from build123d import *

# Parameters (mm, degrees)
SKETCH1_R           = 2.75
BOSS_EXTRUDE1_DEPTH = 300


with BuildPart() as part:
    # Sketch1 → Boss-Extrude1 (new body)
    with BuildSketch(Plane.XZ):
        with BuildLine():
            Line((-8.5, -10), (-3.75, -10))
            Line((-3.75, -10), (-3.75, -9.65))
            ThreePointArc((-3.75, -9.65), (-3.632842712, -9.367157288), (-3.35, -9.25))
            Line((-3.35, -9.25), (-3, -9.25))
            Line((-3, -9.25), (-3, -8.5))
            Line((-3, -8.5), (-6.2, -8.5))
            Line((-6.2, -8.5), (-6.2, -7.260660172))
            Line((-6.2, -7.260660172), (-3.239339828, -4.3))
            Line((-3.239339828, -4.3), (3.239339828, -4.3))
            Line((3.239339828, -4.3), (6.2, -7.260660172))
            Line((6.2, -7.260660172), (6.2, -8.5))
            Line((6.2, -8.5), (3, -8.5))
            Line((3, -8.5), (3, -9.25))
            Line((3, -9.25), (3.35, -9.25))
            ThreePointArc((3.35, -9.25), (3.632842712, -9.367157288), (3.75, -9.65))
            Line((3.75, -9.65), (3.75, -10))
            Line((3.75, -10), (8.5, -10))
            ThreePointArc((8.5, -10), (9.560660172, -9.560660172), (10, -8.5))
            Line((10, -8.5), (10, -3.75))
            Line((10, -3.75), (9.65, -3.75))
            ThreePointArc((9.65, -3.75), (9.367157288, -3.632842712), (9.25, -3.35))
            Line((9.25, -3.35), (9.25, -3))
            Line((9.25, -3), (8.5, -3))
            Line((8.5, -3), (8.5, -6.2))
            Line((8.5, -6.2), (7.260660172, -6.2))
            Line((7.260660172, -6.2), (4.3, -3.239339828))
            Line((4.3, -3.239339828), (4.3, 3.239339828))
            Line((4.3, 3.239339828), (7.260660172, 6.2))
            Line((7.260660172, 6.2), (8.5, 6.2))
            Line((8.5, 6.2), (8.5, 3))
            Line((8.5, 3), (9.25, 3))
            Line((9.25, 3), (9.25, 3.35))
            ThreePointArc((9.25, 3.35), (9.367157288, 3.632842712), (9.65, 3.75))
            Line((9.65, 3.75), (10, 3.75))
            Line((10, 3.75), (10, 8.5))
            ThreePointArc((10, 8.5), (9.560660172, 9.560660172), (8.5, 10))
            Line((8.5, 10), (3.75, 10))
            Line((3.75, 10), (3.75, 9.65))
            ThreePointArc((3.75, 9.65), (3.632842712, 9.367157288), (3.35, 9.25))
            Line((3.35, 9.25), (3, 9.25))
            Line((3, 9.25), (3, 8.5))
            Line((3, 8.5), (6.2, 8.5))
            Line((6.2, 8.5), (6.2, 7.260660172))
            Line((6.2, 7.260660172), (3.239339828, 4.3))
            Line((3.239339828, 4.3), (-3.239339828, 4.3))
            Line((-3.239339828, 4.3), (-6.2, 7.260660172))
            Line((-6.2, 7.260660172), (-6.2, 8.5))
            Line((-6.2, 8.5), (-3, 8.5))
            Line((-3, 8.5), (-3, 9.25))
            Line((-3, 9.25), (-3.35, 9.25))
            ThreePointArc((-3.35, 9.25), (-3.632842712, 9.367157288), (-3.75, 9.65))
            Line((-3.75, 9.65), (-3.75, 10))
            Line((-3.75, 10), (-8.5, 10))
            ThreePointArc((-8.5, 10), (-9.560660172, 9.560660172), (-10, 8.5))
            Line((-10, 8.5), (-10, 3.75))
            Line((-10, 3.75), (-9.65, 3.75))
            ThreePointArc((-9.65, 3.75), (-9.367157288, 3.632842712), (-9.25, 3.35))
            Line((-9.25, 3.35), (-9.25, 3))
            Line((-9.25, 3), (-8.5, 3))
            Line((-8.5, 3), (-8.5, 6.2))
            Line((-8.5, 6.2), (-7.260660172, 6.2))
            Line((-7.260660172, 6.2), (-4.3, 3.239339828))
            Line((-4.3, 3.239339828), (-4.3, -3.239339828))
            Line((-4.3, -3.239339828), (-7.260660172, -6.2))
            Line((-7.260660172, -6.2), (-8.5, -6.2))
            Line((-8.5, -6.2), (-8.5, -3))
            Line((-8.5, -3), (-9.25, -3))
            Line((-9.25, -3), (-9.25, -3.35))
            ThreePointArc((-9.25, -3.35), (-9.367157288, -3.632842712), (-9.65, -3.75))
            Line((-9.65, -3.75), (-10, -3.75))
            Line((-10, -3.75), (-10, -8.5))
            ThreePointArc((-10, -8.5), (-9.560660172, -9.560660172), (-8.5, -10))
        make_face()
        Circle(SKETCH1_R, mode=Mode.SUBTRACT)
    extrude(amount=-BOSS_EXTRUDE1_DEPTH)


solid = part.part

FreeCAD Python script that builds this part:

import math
import FreeCAD as App
import Part
import Sketcher

V = App.Vector
Q = App.Units.Quantity

doc = App.newDocument("Part")
params = doc.addObject("Spreadsheet::Sheet", "Params")
for row, (alias, value) in enumerate([
    ("sketch1_diameter", "5.5 mm"),
    ("sketch1_radius", "0.4 mm"),
    ("sketch1_radius2", "1.5 mm"),
    ("sketch1_width", "3.2 mm"),
    ("sketch1_width2", "4.75 mm"),
    ("pad1_length", "300 mm"),
], start=1):
    params.set(f"A{row}", alias)
    params.set(f"B{row}", "=" + value)
    params.setAlias(f"B{row}", alias)

body = doc.addObject("PartDesign::Body", "Body")

sketch1 = body.newObject("Sketcher::SketchObject", "Sketch")
sketch1.AttachmentSupport = (doc.getObject("XZ_Plane"), [""])
sketch1.MapMode = "FlatFace"
sketch1.addGeometry(Part.LineSegment(V(-8.5, -10, 0), V(-3.75, -10, 0)), False)
sketch1.addGeometry(Part.LineSegment(V(-3.75, -10, 0), V(-3.75, -9.65, 0)), False)
sketch1.addGeometry(Part.ArcOfCircle(Part.Circle(V(-3.35, -9.65, 0), V(0, 0, 1), 0.4), math.radians(90), math.radians(180)), False)
sketch1.addGeometry(Part.LineSegment(V(-3.35, -9.25, 0), V(-3, -9.25, 0)), False)
sketch1.addGeometry(Part.LineSegment(V(-3, -9.25, 0), V(-3, -8.5, 0)), False)
sketch1.addGeometry(Part.LineSegment(V(-3, -8.5, 0), V(-6.2, -8.5, 0)), False)
sketch1.addGeometry(Part.LineSegment(V(-6.2, -8.5, 0), V(-6.2, -7.26066, 0)), False)
sketch1.addGeometry(Part.LineSegment(V(-6.2, -7.26066, 0), V(-3.23934, -4.3, 0)), False)
sketch1.addGeometry(Part.LineSegment(V(-3.23934, -4.3, 0), V(3.23934, -4.3, 0)), False)
sketch1.addGeometry(Part.LineSegment(V(3.23934, -4.3, 0), V(6.2, -7.26066, 0)), False)
sketch1.addGeometry(Part.LineSegment(V(6.2, -7.26066, 0), V(6.2, -8.5, 0)), False)
sketch1.addGeometry(Part.LineSegment(V(6.2, -8.5, 0), V(3, -8.5, 0)), False)
sketch1.addGeometry(Part.LineSegment(V(3, -8.5, 0), V(3, -9.25, 0)), False)
sketch1.addGeometry(Part.LineSegment(V(3, -9.25, 0), V(3.35, -9.25, 0)), False)
sketch1.addGeometry(Part.ArcOfCircle(Part.Circle(V(3.35, -9.65, 0), V(0, 0, 1), 0.4), math.radians(0), math.radians(90)), False)
sketch1.addGeometry(Part.LineSegment(V(3.75, -9.65, 0), V(3.75, -10, 0)), False)
sketch1.addGeometry(Part.LineSegment(V(3.75, -10, 0), V(8.5, -10, 0)), False)
sketch1.addGeometry(Part.ArcOfCircle(Part.Circle(V(8.5, -8.5, 0), V(0, 0, 1), 1.5), math.radians(-90), math.radians(0)), False)
sketch1.addGeometry(Part.LineSegment(V(10, -8.5, 0), V(10, -3.75, 0)), False)
sketch1.addGeometry(Part.LineSegment(V(10, -3.75, 0), V(9.65, -3.75, 0)), False)
sketch1.addGeometry(Part.ArcOfCircle(Part.Circle(V(9.65, -3.35, 0), V(0, 0, 1), 0.4), math.radians(-180), math.radians(-90)), False)
sketch1.addGeometry(Part.LineSegment(V(9.25, -3.35, 0), V(9.25, -3, 0)), False)
sketch1.addGeometry(Part.LineSegment(V(9.25, -3, 0), V(8.5, -3, 0)), False)
sketch1.addGeometry(Part.LineSegment(V(8.5, -3, 0), V(8.5, -6.2, 0)), False)
sketch1.addGeometry(Part.LineSegment(V(8.5, -6.2, 0), V(7.26066, -6.2, 0)), False)
sketch1.addGeometry(Part.LineSegment(V(7.26066, -6.2, 0), V(4.3, -3.23934, 0)), False)
sketch1.addGeometry(Part.LineSegment(V(4.3, -3.23934, 0), V(4.3, 3.23934, 0)), False)
sketch1.addGeometry(Part.LineSegment(V(4.3, 3.23934, 0), V(7.26066, 6.2, 0)), False)
sketch1.addGeometry(Part.LineSegment(V(7.26066, 6.2, 0), V(8.5, 6.2, 0)), False)
sketch1.addGeometry(Part.LineSegment(V(8.5, 6.2, 0), V(8.5, 3, 0)), False)
sketch1.addGeometry(Part.LineSegment(V(8.5, 3, 0), V(9.25, 3, 0)), False)
sketch1.addGeometry(Part.LineSegment(V(9.25, 3, 0), V(9.25, 3.35, 0)), False)
sketch1.addGeometry(Part.ArcOfCircle(Part.Circle(V(9.65, 3.35, 0), V(0, 0, 1), 0.4), math.radians(90), math.radians(180)), False)
sketch1.addGeometry(Part.LineSegment(V(9.65, 3.75, 0), V(10, 3.75, 0)), False)
sketch1.addGeometry(Part.LineSegment(V(10, 3.75, 0), V(10, 8.5, 0)), False)
sketch1.addGeometry(Part.ArcOfCircle(Part.Circle(V(8.5, 8.5, 0), V(0, 0, 1), 1.5), math.radians(0), math.radians(90)), False)
sketch1.addGeometry(Part.LineSegment(V(8.5, 10, 0), V(3.75, 10, 0)), False)
sketch1.addGeometry(Part.LineSegment(V(3.75, 10, 0), V(3.75, 9.65, 0)), False)
sketch1.addGeometry(Part.ArcOfCircle(Part.Circle(V(3.35, 9.65, 0), V(0, 0, 1), 0.4), math.radians(-90), math.radians(0)), False)
sketch1.addGeometry(Part.LineSegment(V(3.35, 9.25, 0), V(3, 9.25, 0)), False)
sketch1.addGeometry(Part.LineSegment(V(3, 9.25, 0), V(3, 8.5, 0)), False)
sketch1.addGeometry(Part.LineSegment(V(3, 8.5, 0), V(6.2, 8.5, 0)), False)
sketch1.addGeometry(Part.LineSegment(V(6.2, 8.5, 0), V(6.2, 7.26066, 0)), False)
sketch1.addGeometry(Part.LineSegment(V(6.2, 7.26066, 0), V(3.23934, 4.3, 0)), False)
sketch1.addGeometry(Part.LineSegment(V(3.23934, 4.3, 0), V(-3.23934, 4.3, 0)), False)
sketch1.addGeometry(Part.LineSegment(V(-3.23934, 4.3, 0), V(-6.2, 7.26066, 0)), False)
sketch1.addGeometry(Part.LineSegment(V(-6.2, 7.26066, 0), V(-6.2, 8.5, 0)), False)
sketch1.addGeometry(Part.LineSegment(V(-6.2, 8.5, 0), V(-3, 8.5, 0)), False)
sketch1.addGeometry(Part.LineSegment(V(-3, 8.5, 0), V(-3, 9.25, 0)), False)
sketch1.addGeometry(Part.LineSegment(V(-3, 9.25, 0), V(-3.35, 9.25, 0)), False)
sketch1.addGeometry(Part.ArcOfCircle(Part.Circle(V(-3.35, 9.65, 0), V(0, 0, 1), 0.4), math.radians(-180), math.radians(-90)), False)
sketch1.addGeometry(Part.LineSegment(V(-3.75, 9.65, 0), V(-3.75, 10, 0)), False)
sketch1.addGeometry(Part.LineSegment(V(-3.75, 10, 0), V(-8.5, 10, 0)), False)
sketch1.addGeometry(Part.ArcOfCircle(Part.Circle(V(-8.5, 8.5, 0), V(0, 0, 1), 1.5), math.radians(90), math.radians(180)), False)
sketch1.addGeometry(Part.LineSegment(V(-10, 8.5, 0), V(-10, 3.75, 0)), False)
sketch1.addGeometry(Part.LineSegment(V(-10, 3.75, 0), V(-9.65, 3.75, 0)), False)
sketch1.addGeometry(Part.ArcOfCircle(Part.Circle(V(-9.65, 3.35, 0), V(0, 0, 1), 0.4), math.radians(0), math.radians(90)), False)
sketch1.addGeometry(Part.LineSegment(V(-9.25, 3.35, 0), V(-9.25, 3, 0)), False)
sketch1.addGeometry(Part.LineSegment(V(-9.25, 3, 0), V(-8.5, 3, 0)), False)
sketch1.addGeometry(Part.LineSegment(V(-8.5, 3, 0), V(-8.5, 6.2, 0)), False)
sketch1.addGeometry(Part.LineSegment(V(-8.5, 6.2, 0), V(-7.26066, 6.2, 0)), False)
sketch1.addGeometry(Part.LineSegment(V(-7.26066, 6.2, 0), V(-4.3, 3.23934, 0)), False)
sketch1.addGeometry(Part.LineSegment(V(-4.3, 3.23934, 0), V(-4.3, -3.23934, 0)), False)
sketch1.addGeometry(Part.LineSegment(V(-4.3, -3.23934, 0), V(-7.26066, -6.2, 0)), False)
sketch1.addGeometry(Part.LineSegment(V(-7.26066, -6.2, 0), V(-8.5, -6.2, 0)), False)
sketch1.addGeometry(Part.LineSegment(V(-8.5, -6.2, 0), V(-8.5, -3, 0)), False)
sketch1.addGeometry(Part.LineSegment(V(-8.5, -3, 0), V(-9.25, -3, 0)), False)
sketch1.addGeometry(Part.LineSegment(V(-9.25, -3, 0), V(-9.25, -3.35, 0)), False)
sketch1.addGeometry(Part.ArcOfCircle(Part.Circle(V(-9.65, -3.35, 0), V(0, 0, 1), 0.4), math.radians(-90), math.radians(0)), False)
sketch1.addGeometry(Part.LineSegment(V(-9.65, -3.75, 0), V(-10, -3.75, 0)), False)
sketch1.addGeometry(Part.LineSegment(V(-10, -3.75, 0), V(-10, -8.5, 0)), False)
sketch1.addGeometry(Part.ArcOfCircle(Part.Circle(V(-8.5, -8.5, 0), V(0, 0, 1), 1.5), math.radians(180), math.radians(270)), False)
sketch1.addGeometry(Part.Circle(V(0, 0, 0), V(0, 0, 1), 2.75), False)
sketch1.addConstraint(Sketcher.Constraint("Coincident", 0, 2, 1, 1))
sketch1.addConstraint(Sketcher.Constraint("Tangent", 1, 2, 2, 2))
sketch1.addConstraint(Sketcher.Constraint("Tangent", 2, 1, 3, 1))
sketch1.addConstraint(Sketcher.Constraint("Coincident", 3, 2, 4, 1))
sketch1.addConstraint(Sketcher.Constraint("Coincident", 4, 2, 5, 1))
sketch1.addConstraint(Sketcher.Constraint("Coincident", 5, 2, 6, 1))
sketch1.addConstraint(Sketcher.Constraint("Coincident", 6, 2, 7, 1))
sketch1.addConstraint(Sketcher.Constraint("Coincident", 7, 2, 8, 1))
sketch1.addConstraint(Sketcher.Constraint("Coincident", 8, 2, 9, 1))
sketch1.addConstraint(Sketcher.Constraint("Coincident", 9, 2, 10, 1))
sketch1.addConstraint(Sketcher.Constraint("Coincident", 10, 2, 11, 1))
sketch1.addConstraint(Sketcher.Constraint("Coincident", 11, 2, 12, 1))
sketch1.addConstraint(Sketcher.Constraint("Coincident", 12, 2, 13, 1))
sketch1.addConstraint(Sketcher.Constraint("Tangent", 13, 2, 14, 2))
sketch1.addConstraint(Sketcher.Constraint("Tangent", 14, 1, 15, 1))
sketch1.addConstraint(Sketcher.Constraint("Coincident", 15, 2, 16, 1))
sketch1.addConstraint(Sketcher.Constraint("Tangent", 16, 2, 17, 1))
sketch1.addConstraint(Sketcher.Constraint("Tangent", 17, 2, 18, 1))
sketch1.addConstraint(Sketcher.Constraint("Coincident", 18, 2, 19, 1))
sketch1.addConstraint(Sketcher.Constraint("Tangent", 19, 2, 20, 2))
sketch1.addConstraint(Sketcher.Constraint("Tangent", 20, 1, 21, 1))
sketch1.addConstraint(Sketcher.Constraint("Coincident", 21, 2, 22, 1))
sketch1.addConstraint(Sketcher.Constraint("Coincident", 22, 2, 23, 1))
sketch1.addConstraint(Sketcher.Constraint("Coincident", 23, 2, 24, 1))
sketch1.addConstraint(Sketcher.Constraint("Coincident", 24, 2, 25, 1))
sketch1.addConstraint(Sketcher.Constraint("Coincident", 25, 2, 26, 1))
sketch1.addConstraint(Sketcher.Constraint("Coincident", 26, 2, 27, 1))
sketch1.addConstraint(Sketcher.Constraint("Coincident", 27, 2, 28, 1))
sketch1.addConstraint(Sketcher.Constraint("Coincident", 28, 2, 29, 1))
sketch1.addConstraint(Sketcher.Constraint("Coincident", 29, 2, 30, 1))
sketch1.addConstraint(Sketcher.Constraint("Coincident", 30, 2, 31, 1))
sketch1.addConstraint(Sketcher.Constraint("Tangent", 31, 2, 32, 2))
sketch1.addConstraint(Sketcher.Constraint("Tangent", 32, 1, 33, 1))
sketch1.addConstraint(Sketcher.Constraint("Coincident", 33, 2, 34, 1))
sketch1.addConstraint(Sketcher.Constraint("Tangent", 34, 2, 35, 1))
sketch1.addConstraint(Sketcher.Constraint("Tangent", 35, 2, 36, 1))
sketch1.addConstraint(Sketcher.Constraint("Coincident", 36, 2, 37, 1))
sketch1.addConstraint(Sketcher.Constraint("Tangent", 37, 2, 38, 2))
sketch1.addConstraint(Sketcher.Constraint("Tangent", 38, 1, 39, 1))
sketch1.addConstraint(Sketcher.Constraint("Coincident", 39, 2, 40, 1))
sketch1.addConstraint(Sketcher.Constraint("Coincident", 40, 2, 41, 1))
sketch1.addConstraint(Sketcher.Constraint("Coincident", 41, 2, 42, 1))
sketch1.addConstraint(Sketcher.Constraint("Coincident", 42, 2, 43, 1))
sketch1.addConstraint(Sketcher.Constraint("Coincident", 43, 2, 44, 1))
sketch1.addConstraint(Sketcher.Constraint("Coincident", 44, 2, 45, 1))
sketch1.addConstraint(Sketcher.Constraint("Coincident", 45, 2, 46, 1))
sketch1.addConstraint(Sketcher.Constraint("Coincident", 46, 2, 47, 1))
sketch1.addConstraint(Sketcher.Constraint("Coincident", 47, 2, 48, 1))
sketch1.addConstraint(Sketcher.Constraint("Coincident", 48, 2, 49, 1))
sketch1.addConstraint(Sketcher.Constraint("Tangent", 49, 2, 50, 2))
sketch1.addConstraint(Sketcher.Constraint("Tangent", 50, 1, 51, 1))
sketch1.addConstraint(Sketcher.Constraint("Coincident", 51, 2, 52, 1))
sketch1.addConstraint(Sketcher.Constraint("Tangent", 52, 2, 53, 1))
sketch1.addConstraint(Sketcher.Constraint("Tangent", 53, 2, 54, 1))
sketch1.addConstraint(Sketcher.Constraint("Coincident", 54, 2, 55, 1))
sketch1.addConstraint(Sketcher.Constraint("Tangent", 55, 2, 56, 2))
sketch1.addConstraint(Sketcher.Constraint("Tangent", 56, 1, 57, 1))
sketch1.addConstraint(Sketcher.Constraint("Coincident", 57, 2, 58, 1))
sketch1.addConstraint(Sketcher.Constraint("Coincident", 58, 2, 59, 1))
sketch1.addConstraint(Sketcher.Constraint("Coincident", 59, 2, 60, 1))
sketch1.addConstraint(Sketcher.Constraint("Coincident", 60, 2, 61, 1))
sketch1.addConstraint(Sketcher.Constraint("Coincident", 61, 2, 62, 1))
sketch1.addConstraint(Sketcher.Constraint("Coincident", 62, 2, 63, 1))
sketch1.addConstraint(Sketcher.Constraint("Coincident", 63, 2, 64, 1))
sketch1.addConstraint(Sketcher.Constraint("Coincident", 64, 2, 65, 1))
sketch1.addConstraint(Sketcher.Constraint("Coincident", 65, 2, 66, 1))
sketch1.addConstraint(Sketcher.Constraint("Coincident", 66, 2, 67, 1))
sketch1.addConstraint(Sketcher.Constraint("Tangent", 67, 2, 68, 2))
sketch1.addConstraint(Sketcher.Constraint("Tangent", 68, 1, 69, 1))
sketch1.addConstraint(Sketcher.Constraint("Coincident", 69, 2, 70, 1))
sketch1.addConstraint(Sketcher.Constraint("Tangent", 70, 2, 71, 1))
sketch1.addConstraint(Sketcher.Constraint("Tangent", 71, 2, 0, 1))
sketch1.addConstraint(Sketcher.Constraint("Horizontal", 0))
sketch1.addConstraint(Sketcher.Constraint("Vertical", 1))
sketch1.addConstraint(Sketcher.Constraint("Horizontal", 3))
sketch1.addConstraint(Sketcher.Constraint("Vertical", 4))
sketch1.addConstraint(Sketcher.Constraint("Horizontal", 5))
sketch1.addConstraint(Sketcher.Constraint("Vertical", 6))
sketch1.addConstraint(Sketcher.Constraint("Horizontal", 8))
sketch1.addConstraint(Sketcher.Constraint("Vertical", 10))
sketch1.addConstraint(Sketcher.Constraint("Horizontal", 11))
sketch1.addConstraint(Sketcher.Constraint("Vertical", 12))
sketch1.addConstraint(Sketcher.Constraint("Horizontal", 13))
sketch1.addConstraint(Sketcher.Constraint("Vertical", 15))
sketch1.addConstraint(Sketcher.Constraint("Horizontal", 16))
sketch1.addConstraint(Sketcher.Constraint("Vertical", 18))
sketch1.addConstraint(Sketcher.Constraint("Horizontal", 19))
sketch1.addConstraint(Sketcher.Constraint("Vertical", 21))
sketch1.addConstraint(Sketcher.Constraint("Horizontal", 22))
sketch1.addConstraint(Sketcher.Constraint("Vertical", 23))
sketch1.addConstraint(Sketcher.Constraint("Horizontal", 24))
sketch1.addConstraint(Sketcher.Constraint("Vertical", 26))
sketch1.addConstraint(Sketcher.Constraint("Horizontal", 28))
sketch1.addConstraint(Sketcher.Constraint("Vertical", 29))
sketch1.addConstraint(Sketcher.Constraint("Horizontal", 30))
sketch1.addConstraint(Sketcher.Constraint("Vertical", 31))
sketch1.addConstraint(Sketcher.Constraint("Horizontal", 33))
sketch1.addConstraint(Sketcher.Constraint("Vertical", 34))
sketch1.addConstraint(Sketcher.Constraint("Horizontal", 36))
sketch1.addConstraint(Sketcher.Constraint("Vertical", 37))
sketch1.addConstraint(Sketcher.Constraint("Horizontal", 39))
sketch1.addConstraint(Sketcher.Constraint("Vertical", 40))
sketch1.addConstraint(Sketcher.Constraint("Horizontal", 41))
sketch1.addConstraint(Sketcher.Constraint("Vertical", 42))
sketch1.addConstraint(Sketcher.Constraint("Horizontal", 44))
sketch1.addConstraint(Sketcher.Constraint("Vertical", 46))
sketch1.addConstraint(Sketcher.Constraint("Horizontal", 47))
sketch1.addConstraint(Sketcher.Constraint("Vertical", 48))
sketch1.addConstraint(Sketcher.Constraint("Horizontal", 49))
sketch1.addConstraint(Sketcher.Constraint("Vertical", 51))
sketch1.addConstraint(Sketcher.Constraint("Horizontal", 52))
sketch1.addConstraint(Sketcher.Constraint("Vertical", 54))
sketch1.addConstraint(Sketcher.Constraint("Horizontal", 55))
sketch1.addConstraint(Sketcher.Constraint("Vertical", 57))
sketch1.addConstraint(Sketcher.Constraint("Horizontal", 58))
sketch1.addConstraint(Sketcher.Constraint("Vertical", 59))
sketch1.addConstraint(Sketcher.Constraint("Horizontal", 60))
sketch1.addConstraint(Sketcher.Constraint("Vertical", 62))
sketch1.addConstraint(Sketcher.Constraint("Horizontal", 64))
sketch1.addConstraint(Sketcher.Constraint("Vertical", 65))
sketch1.addConstraint(Sketcher.Constraint("Horizontal", 66))
sketch1.addConstraint(Sketcher.Constraint("Vertical", 67))
sketch1.addConstraint(Sketcher.Constraint("Horizontal", 69))
sketch1.addConstraint(Sketcher.Constraint("Vertical", 70))
sketch1.addConstraint(Sketcher.Constraint("Coincident", 72, 3, -1, 1))
sketch1.addConstraint(Sketcher.Constraint("Equal", 2, 14))
sketch1.addConstraint(Sketcher.Constraint("Equal", 14, 20))
sketch1.addConstraint(Sketcher.Constraint("Equal", 20, 32))
sketch1.addConstraint(Sketcher.Constraint("Equal", 17, 35))
sketch1.addConstraint(Sketcher.Constraint("Equal", 32, 38))
sketch1.addConstraint(Sketcher.Constraint("Equal", 38, 50))
sketch1.addConstraint(Sketcher.Constraint("Equal", 35, 53))
sketch1.addConstraint(Sketcher.Constraint("Equal", 50, 56))
sketch1.addConstraint(Sketcher.Constraint("Equal", 56, 68))
sketch1.addConstraint(Sketcher.Constraint("Equal", 53, 71))
sketch1.addConstraint(Sketcher.Constraint("Symmetric", 2, 3, 38, 3, -1, 1))
sketch1.addConstraint(Sketcher.Constraint("Symmetric", 14, 3, 50, 3, -1, 1))
sketch1.addConstraint(Sketcher.Constraint("Symmetric", 17, 3, 53, 3, -1, 1))
sketch1.addConstraint(Sketcher.Constraint("Symmetric", 20, 3, 56, 3, -1, 1))
sketch1.addConstraint(Sketcher.Constraint("Symmetric", 32, 3, 68, 3, -1, 1))
sketch1.addConstraint(Sketcher.Constraint("Symmetric", 35, 3, 71, 3, -1, 1))
sketch1.addConstraint(Sketcher.Constraint("Symmetric", 4, 2, 40, 2, -1, 1))
sketch1.addConstraint(Sketcher.Constraint("Symmetric", 6, 2, 42, 2, -1, 1))
sketch1.addConstraint(Sketcher.Constraint("Symmetric", 7, 2, 43, 2, -1, 1))
sketch1.addConstraint(Sketcher.Constraint("Symmetric", 9, 2, 45, 2, -1, 1))
sketch1.addConstraint(Sketcher.Constraint("Symmetric", 11, 2, 47, 2, -1, 1))
sketch1.addConstraint(Sketcher.Constraint("Symmetric", 22, 2, 58, 2, -1, 1))
sketch1.addConstraint(Sketcher.Constraint("Symmetric", 24, 2, 60, 2, -1, 1))
sketch1.addConstraint(Sketcher.Constraint("Symmetric", 25, 2, 61, 2, -1, 1))
sketch1.addConstraint(Sketcher.Constraint("Symmetric", 27, 2, 63, 2, -1, 1))
sketch1.addConstraint(Sketcher.Constraint("Symmetric", 29, 2, 65, 2, -1, 1))
sketch1.addConstraint(Sketcher.Constraint("Symmetric", 2, 3, 14, 3, -2))
sketch1.addConstraint(Sketcher.Constraint("Symmetric", 35, 3, 53, 3, -2))
sketch1.addConstraint(Sketcher.Constraint("Symmetric", 32, 3, 56, 3, -2))
sketch1.addConstraint(Sketcher.Constraint("Symmetric", 6, 2, 9, 2, -2))
sketch1.addConstraint(Sketcher.Constraint("Symmetric", 4, 2, 11, 2, -2))
sketch1.addConstraint(Sketcher.Constraint("Symmetric", 29, 2, 58, 2, -2))
sketch1.addConstraint(Sketcher.Constraint("Symmetric", 27, 2, 60, 2, -2))
sketch1.addConstraint(Sketcher.Constraint("Perpendicular", 7, 9))
sketch1.addConstraint(Sketcher.Constraint("Parallel", 9, 25))
sketch1.addConstraint(Sketcher.Constraint("Perpendicular", 25, 27))
sketch1.addConstraint(Sketcher.Constraint("Perpendicular", 43, 45))
sketch1.addConstraint(Sketcher.Constraint("Perpendicular", 61, 63))
sketch1.addConstraint(Sketcher.Constraint("Horizontal", 71, 3, 4, 2))
sketch1.addConstraint(Sketcher.Constraint("Horizontal", 26, 2, 61, 2))
sketch1.addConstraint(Sketcher.Constraint("Vertical", 16, 2, 22, 2))
sketch1.addConstraint(Sketcher.Constraint("Equal", 13, 19))
sketch1.addConstraint(Sketcher.Constraint("Equal", 69, 1))
sketch1.addConstraint(Sketcher.Constraint("Equal", 64, 6))
sketch1.addConstraint(Sketcher.Constraint("Equal", 52, 18))
sketch1.addConstraint(Sketcher.Constraint("Equal", 15, 21))
sketch1.addConstraint(Sketcher.Constraint("Equal", 47, 23))
sketch1.addConstraint(Sketcher.Constraint("Equal", 44, 26))
sketch1.addConstraint(Sketcher.Constraint("Equal", 9, 25))
sketch1.addConstraint(Sketcher.Constraint("Diameter", 72, Q("5.5 mm")))
sketch1.addConstraint(Sketcher.Constraint("Radius", 2, Q("0.4 mm")))
sketch1.addConstraint(Sketcher.Constraint("Radius", 17, Q("1.5 mm")))
sketch1.addConstraint(Sketcher.Constraint("DistanceX", 5, 2, 5, 1, Q("3.2 mm")))
sketch1.addConstraint(Sketcher.Constraint("DistanceY", 0, 2, -1, 1, Q("10 mm")))
sketch1.addConstraint(Sketcher.Constraint("DistanceX", 3, 2, -1, 1, Q("3 mm")))
sketch1.addConstraint(Sketcher.Constraint("DistanceX", 0, 1, 0, 2, Q("4.75 mm")))
sketch1.addConstraint(Sketcher.Constraint("DistanceY", 7, 2, -1, 1, Q("4.3 mm")))
sketch1.addConstraint(Sketcher.Constraint("DistanceX", 8, 1, 8, 2, Q("6.47868 mm")))
sketch1.setExpression("Constraints[174]", "Params.sketch1_diameter")
sketch1.setExpression("Constraints[175]", "Params.sketch1_radius")
sketch1.setExpression("Constraints[176]", "Params.sketch1_radius2")
sketch1.setExpression("Constraints[177]", "Params.sketch1_width")
sketch1.setExpression("Constraints[180]", "Params.sketch1_width2")
pad1 = body.newObject("PartDesign::Pad", "Pad")
pad1.Profile = sketch1
pad1.setExpression("Length", "Params.pad1_length")
pad1.Reversed = True

doc.recompute()
